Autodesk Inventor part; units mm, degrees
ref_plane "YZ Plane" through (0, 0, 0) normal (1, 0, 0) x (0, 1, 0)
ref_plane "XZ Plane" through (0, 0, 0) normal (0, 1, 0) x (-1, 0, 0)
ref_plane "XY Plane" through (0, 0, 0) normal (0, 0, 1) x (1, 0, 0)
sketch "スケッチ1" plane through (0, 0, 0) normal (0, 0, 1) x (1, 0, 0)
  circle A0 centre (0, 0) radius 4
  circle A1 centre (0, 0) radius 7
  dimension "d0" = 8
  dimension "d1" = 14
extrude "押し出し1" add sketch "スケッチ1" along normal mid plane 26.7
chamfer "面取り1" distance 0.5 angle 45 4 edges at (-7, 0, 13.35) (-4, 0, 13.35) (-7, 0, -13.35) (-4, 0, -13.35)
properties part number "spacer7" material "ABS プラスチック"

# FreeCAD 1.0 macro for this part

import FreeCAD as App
import Part
import Sketcher


def edges_at(feature, points):
    """Names of the edges that pass closest to the given points."""
    edges = feature.Shape.Edges
    near = lambda p: min(range(len(edges)), key=lambda i: edges[i].distToShape(Part.Vertex(*p))[0])
    return sorted({f"Edge{near(p) + 1}" for p in points})

doc = App.newDocument("Part")
body = doc.addObject("PartDesign::Body", "Body")

# Sketch on XY plane
sketch1 = body.newObject("Sketcher::SketchObject", "Sketch")
sketch1.AttachmentSupport = (doc.getObject("XY_Plane"), [""])
sketch1.MapMode = "FlatFace"
sketch1.addGeometry(Part.Circle(App.Vector(0, 0, 0), App.Vector(0, 0, 1), 7), False)
sketch1.addGeometry(Part.Circle(App.Vector(0, 0, 0), App.Vector(0, 0, 1), 4), False)
sketch1.addConstraint(Sketcher.Constraint("Coincident", 0, 3, -1, 1))
sketch1.addConstraint(Sketcher.Constraint("Coincident", 1, 3, -1, 1))
sketch1.addConstraint(Sketcher.Constraint("Diameter", 0, 14.0))
sketch1.addConstraint(Sketcher.Constraint("Diameter", 1, 8.0))
pad1 = body.newObject("PartDesign::Pad", "Pad")
pad1.Profile = sketch1
pad1.Length = 26.7
pad1.Midplane = True
doc.recompute()

chamfer = body.newObject("PartDesign::Chamfer", "Chamfer")
chamfer.Base = (pad1, edges_at(pad1, [
    (-7, 0, 13.35),
    (-4, 0, 13.35),
    (-7, 0, -13.35),
    (-4, 0, -13.35),
]))
chamfer.Size = 0.5

doc.recompute()
